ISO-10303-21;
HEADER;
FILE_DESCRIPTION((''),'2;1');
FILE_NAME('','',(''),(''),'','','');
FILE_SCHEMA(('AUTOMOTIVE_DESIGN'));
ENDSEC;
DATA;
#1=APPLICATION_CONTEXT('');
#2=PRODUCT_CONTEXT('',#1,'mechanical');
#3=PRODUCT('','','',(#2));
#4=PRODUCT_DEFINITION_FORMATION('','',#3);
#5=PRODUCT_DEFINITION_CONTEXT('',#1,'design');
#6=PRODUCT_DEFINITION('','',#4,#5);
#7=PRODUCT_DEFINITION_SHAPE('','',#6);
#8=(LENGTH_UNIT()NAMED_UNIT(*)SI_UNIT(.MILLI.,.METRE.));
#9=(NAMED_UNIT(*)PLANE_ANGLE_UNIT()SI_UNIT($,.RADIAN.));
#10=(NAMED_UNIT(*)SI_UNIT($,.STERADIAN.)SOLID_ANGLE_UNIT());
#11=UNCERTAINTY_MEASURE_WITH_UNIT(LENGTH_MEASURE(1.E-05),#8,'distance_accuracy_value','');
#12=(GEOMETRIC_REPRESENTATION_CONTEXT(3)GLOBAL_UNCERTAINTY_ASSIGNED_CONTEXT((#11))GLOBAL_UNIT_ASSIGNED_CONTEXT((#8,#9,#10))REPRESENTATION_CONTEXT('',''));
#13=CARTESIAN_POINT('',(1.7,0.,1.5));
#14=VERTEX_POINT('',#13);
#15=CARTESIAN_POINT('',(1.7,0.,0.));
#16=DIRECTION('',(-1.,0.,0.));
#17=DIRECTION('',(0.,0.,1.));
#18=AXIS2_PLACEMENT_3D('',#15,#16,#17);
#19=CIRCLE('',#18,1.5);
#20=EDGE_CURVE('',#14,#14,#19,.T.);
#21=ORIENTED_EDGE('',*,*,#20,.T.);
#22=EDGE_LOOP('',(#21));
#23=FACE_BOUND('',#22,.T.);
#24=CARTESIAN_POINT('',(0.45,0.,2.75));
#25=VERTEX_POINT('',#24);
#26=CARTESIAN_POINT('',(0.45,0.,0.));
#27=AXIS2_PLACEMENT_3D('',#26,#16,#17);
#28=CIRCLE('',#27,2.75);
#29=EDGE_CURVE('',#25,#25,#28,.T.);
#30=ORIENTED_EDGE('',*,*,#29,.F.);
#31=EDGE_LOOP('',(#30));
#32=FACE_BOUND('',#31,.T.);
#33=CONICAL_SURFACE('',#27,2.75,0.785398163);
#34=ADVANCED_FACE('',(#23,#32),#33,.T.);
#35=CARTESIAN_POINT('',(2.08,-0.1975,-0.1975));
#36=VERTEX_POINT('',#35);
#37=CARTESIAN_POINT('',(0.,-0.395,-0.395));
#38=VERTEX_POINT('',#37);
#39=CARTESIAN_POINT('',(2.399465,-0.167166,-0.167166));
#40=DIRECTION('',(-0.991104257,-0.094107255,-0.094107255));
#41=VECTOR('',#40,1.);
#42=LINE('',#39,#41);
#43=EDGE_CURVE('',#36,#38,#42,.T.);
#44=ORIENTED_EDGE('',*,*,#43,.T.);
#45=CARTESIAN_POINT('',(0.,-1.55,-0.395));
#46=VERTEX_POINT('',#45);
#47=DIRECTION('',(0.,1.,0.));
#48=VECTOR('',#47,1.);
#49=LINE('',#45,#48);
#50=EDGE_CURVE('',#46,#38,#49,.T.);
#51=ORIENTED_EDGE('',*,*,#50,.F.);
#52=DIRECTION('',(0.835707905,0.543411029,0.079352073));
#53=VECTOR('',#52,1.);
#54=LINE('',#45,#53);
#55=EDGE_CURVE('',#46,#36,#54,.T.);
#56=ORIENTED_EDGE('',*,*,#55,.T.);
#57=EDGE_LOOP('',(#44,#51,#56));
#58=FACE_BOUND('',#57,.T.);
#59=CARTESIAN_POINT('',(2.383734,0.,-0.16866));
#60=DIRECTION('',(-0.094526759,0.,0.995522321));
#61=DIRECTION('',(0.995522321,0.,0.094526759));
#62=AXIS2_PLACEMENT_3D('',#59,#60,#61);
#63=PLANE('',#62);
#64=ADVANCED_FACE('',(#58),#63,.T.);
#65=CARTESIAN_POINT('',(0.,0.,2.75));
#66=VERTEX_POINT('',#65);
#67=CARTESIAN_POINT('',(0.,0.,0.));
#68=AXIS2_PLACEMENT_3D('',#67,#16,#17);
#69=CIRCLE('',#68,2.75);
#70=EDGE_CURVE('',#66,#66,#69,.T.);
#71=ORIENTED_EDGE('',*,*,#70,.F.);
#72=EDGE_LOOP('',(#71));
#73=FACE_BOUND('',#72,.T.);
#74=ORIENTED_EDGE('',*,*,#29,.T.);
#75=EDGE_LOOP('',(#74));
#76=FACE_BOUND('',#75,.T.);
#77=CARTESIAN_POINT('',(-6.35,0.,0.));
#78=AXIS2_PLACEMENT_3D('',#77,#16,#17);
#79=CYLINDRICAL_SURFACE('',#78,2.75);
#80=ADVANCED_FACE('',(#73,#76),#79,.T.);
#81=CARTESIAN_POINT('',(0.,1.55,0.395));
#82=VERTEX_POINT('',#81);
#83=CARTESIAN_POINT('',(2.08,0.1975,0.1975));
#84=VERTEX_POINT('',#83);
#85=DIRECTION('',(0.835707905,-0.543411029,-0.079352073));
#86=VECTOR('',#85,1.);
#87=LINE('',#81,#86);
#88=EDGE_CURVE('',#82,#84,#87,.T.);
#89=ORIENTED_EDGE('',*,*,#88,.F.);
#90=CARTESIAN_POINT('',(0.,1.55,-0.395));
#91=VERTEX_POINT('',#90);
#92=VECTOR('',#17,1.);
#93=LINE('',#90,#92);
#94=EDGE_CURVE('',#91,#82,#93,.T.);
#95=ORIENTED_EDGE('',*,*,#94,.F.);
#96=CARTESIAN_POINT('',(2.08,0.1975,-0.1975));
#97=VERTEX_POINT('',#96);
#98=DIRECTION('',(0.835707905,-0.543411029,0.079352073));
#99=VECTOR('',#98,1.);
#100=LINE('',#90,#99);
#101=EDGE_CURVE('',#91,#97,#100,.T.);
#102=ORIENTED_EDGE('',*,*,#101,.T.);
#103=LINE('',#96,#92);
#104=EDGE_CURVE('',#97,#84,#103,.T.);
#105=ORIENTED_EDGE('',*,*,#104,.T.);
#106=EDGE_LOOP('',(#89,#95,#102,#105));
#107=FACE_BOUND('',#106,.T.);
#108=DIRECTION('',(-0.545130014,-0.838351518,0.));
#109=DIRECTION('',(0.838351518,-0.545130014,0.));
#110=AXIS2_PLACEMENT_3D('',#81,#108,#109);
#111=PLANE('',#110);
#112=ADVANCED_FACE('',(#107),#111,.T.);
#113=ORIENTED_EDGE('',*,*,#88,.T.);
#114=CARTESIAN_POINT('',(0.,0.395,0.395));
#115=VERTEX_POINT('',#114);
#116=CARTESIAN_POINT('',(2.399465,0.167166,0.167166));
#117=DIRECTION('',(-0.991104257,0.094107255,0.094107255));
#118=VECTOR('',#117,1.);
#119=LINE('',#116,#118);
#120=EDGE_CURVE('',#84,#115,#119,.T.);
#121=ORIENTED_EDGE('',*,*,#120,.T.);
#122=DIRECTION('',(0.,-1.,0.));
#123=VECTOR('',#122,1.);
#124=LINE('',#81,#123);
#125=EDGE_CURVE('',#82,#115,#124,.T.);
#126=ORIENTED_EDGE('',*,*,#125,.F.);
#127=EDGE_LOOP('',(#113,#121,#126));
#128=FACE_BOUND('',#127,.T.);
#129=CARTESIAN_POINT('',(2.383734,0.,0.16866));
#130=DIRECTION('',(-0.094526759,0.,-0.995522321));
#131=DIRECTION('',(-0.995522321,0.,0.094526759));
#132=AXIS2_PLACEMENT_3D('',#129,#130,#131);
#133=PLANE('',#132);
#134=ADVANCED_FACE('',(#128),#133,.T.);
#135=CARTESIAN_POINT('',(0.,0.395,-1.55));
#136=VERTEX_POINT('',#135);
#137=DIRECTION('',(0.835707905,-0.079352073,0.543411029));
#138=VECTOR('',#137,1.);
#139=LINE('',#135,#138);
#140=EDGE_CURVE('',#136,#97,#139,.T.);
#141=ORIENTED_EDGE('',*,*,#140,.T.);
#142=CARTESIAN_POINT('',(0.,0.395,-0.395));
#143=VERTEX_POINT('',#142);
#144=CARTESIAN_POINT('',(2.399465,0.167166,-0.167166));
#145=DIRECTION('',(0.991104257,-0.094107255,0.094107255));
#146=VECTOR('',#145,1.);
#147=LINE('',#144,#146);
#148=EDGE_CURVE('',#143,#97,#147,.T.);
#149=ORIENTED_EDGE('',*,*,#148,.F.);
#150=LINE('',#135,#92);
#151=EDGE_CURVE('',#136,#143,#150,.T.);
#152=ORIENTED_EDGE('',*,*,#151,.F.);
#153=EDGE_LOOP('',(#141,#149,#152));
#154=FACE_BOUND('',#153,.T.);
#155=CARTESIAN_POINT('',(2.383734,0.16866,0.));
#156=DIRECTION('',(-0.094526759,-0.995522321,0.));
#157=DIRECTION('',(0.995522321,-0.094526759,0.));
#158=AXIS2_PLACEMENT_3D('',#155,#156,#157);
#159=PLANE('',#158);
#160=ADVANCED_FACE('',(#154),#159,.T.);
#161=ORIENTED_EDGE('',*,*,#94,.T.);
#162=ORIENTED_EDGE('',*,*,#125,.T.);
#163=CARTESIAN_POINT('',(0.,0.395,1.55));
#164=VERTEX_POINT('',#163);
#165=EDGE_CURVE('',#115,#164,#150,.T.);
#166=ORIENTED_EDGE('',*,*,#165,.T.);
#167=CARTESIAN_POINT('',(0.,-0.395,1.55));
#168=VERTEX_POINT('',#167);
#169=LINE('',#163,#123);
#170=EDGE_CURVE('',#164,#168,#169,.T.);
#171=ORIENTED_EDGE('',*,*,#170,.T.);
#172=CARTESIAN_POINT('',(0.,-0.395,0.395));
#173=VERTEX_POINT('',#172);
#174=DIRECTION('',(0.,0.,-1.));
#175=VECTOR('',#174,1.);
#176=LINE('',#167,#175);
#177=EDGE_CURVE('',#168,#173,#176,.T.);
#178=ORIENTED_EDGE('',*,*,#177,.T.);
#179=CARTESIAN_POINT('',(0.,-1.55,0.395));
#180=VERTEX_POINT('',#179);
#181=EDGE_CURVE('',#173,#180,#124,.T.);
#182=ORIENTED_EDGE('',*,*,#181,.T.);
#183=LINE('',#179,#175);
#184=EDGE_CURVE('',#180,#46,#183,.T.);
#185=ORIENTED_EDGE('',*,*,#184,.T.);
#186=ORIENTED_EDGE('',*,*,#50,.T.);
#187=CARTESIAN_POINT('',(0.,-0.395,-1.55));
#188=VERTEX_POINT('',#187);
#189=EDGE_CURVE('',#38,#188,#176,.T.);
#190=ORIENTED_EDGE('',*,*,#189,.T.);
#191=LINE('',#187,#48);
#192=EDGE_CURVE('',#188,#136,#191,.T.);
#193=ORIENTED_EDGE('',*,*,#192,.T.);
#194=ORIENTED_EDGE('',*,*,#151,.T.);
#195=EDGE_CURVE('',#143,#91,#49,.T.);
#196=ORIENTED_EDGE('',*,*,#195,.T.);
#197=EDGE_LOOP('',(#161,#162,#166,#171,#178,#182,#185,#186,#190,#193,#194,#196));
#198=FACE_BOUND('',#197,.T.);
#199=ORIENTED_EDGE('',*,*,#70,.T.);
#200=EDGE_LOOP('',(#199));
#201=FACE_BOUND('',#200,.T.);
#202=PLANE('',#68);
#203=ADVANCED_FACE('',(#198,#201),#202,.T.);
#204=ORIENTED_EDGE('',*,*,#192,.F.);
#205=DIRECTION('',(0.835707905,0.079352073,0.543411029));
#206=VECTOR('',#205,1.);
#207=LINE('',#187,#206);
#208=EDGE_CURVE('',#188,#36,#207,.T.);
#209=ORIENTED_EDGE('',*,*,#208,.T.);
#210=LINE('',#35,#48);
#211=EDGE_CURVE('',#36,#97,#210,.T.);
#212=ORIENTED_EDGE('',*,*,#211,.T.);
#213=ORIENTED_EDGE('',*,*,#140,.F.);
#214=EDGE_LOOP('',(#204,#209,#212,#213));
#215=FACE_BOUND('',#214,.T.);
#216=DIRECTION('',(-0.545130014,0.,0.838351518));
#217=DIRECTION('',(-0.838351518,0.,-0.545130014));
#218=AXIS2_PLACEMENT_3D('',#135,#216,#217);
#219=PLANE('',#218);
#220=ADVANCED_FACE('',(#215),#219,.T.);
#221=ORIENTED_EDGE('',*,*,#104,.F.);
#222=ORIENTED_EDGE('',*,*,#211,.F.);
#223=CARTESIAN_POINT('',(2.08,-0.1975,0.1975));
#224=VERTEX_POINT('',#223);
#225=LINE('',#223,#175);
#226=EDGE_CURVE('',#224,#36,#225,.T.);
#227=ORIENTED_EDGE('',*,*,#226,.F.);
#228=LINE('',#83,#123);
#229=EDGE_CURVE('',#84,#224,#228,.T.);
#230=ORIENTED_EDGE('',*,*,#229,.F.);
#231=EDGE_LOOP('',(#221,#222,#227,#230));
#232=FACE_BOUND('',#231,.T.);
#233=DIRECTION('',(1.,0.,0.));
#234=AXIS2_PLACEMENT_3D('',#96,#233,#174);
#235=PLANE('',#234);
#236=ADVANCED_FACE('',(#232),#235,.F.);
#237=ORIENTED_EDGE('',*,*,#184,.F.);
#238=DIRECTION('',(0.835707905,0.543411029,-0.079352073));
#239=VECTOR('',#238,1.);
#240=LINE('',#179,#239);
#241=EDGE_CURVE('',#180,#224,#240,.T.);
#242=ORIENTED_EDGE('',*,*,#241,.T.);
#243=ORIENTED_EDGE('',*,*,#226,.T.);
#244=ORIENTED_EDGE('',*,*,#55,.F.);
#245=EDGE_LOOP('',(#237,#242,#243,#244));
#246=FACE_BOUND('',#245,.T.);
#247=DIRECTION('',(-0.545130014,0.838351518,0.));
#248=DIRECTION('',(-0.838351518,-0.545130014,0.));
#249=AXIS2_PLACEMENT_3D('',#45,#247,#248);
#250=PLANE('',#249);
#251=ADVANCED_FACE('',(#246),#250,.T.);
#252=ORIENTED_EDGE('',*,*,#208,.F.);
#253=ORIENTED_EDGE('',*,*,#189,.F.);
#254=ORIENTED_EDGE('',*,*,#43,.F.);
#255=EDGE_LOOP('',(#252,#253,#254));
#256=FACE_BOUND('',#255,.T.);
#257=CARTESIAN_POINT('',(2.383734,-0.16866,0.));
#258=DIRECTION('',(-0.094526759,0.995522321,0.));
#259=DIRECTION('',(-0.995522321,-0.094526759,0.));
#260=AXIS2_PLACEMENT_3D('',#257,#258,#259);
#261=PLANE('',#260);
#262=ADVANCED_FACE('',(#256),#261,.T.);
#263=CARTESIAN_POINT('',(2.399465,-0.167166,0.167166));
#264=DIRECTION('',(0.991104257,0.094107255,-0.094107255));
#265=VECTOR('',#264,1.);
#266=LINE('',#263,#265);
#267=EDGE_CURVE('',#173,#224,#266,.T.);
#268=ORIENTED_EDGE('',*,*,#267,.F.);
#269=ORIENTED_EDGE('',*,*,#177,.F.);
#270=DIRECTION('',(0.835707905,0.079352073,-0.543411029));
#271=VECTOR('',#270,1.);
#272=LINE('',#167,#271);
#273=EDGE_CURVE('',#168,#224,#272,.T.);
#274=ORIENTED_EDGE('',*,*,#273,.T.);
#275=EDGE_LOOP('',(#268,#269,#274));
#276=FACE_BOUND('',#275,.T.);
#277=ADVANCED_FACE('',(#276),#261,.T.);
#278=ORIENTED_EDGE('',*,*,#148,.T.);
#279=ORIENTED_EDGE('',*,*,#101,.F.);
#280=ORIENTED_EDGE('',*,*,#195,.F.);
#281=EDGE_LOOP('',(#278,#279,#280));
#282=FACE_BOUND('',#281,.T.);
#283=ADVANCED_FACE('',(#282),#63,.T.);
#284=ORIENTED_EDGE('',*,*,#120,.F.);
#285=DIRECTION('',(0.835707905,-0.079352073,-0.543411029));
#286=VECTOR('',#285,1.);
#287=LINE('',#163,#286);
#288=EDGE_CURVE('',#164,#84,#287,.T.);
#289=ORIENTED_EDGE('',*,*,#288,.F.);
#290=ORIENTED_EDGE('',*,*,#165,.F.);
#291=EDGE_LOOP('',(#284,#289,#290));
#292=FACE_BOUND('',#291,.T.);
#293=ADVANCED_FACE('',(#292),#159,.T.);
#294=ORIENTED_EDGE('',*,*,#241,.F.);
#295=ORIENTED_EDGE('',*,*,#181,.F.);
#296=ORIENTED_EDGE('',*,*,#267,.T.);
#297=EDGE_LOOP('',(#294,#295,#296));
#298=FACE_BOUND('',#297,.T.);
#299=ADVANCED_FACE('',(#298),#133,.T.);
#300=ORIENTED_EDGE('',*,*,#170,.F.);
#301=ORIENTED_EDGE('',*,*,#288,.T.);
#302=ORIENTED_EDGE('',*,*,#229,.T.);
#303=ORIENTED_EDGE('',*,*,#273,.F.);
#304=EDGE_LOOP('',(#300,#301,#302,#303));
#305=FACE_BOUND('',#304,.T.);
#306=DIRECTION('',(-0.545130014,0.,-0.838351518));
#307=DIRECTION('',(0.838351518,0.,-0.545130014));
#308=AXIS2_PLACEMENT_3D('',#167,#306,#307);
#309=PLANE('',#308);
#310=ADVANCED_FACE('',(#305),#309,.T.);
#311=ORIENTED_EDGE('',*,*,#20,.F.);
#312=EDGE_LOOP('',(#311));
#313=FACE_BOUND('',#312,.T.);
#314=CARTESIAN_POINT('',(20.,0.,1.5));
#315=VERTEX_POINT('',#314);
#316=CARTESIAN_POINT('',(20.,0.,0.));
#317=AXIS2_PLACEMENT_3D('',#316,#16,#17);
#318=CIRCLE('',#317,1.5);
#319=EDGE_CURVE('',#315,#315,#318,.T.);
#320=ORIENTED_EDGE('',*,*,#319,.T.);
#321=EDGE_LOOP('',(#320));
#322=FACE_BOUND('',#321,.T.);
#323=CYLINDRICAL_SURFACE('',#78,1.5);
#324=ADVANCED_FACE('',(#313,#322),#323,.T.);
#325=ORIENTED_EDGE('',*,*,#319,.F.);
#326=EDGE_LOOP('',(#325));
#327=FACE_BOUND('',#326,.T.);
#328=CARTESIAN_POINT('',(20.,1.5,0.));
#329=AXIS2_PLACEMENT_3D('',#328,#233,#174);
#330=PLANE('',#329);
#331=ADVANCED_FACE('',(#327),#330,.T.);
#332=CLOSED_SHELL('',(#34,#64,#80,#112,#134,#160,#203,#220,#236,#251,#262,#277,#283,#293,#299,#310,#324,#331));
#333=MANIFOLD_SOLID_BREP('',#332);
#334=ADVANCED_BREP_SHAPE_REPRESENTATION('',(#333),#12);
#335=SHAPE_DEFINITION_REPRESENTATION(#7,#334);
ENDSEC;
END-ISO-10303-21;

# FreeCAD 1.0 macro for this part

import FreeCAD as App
import Part
import Sketcher

V = App.Vector
Q = App.Units.Quantity

doc = App.newDocument("Part")
body = doc.addObject("PartDesign::Body", "Body")

sketch1 = body.newObject("Sketcher::SketchObject", "Sketch")
sketch1.AttachmentSupport = (doc.getObject("XY_Plane"), [""])
sketch1.MapMode = "FlatFace"
sketch1.addGeometry(Part.LineSegment(V(0, 2.75, 0), V(0, 0, 0)), False)
sketch1.addGeometry(Part.LineSegment(V(0, 0, 0), V(20, 0, 0)), False)
sketch1.addGeometry(Part.LineSegment(V(20, 0, 0), V(20, 1.5, 0)), False)
sketch1.addGeometry(Part.LineSegment(V(20, 1.5, 0), V(1.7, 1.5, 0)), False)
sketch1.addGeometry(Part.LineSegment(V(1.7, 1.5, 0), V(0.45, 2.75, 0)), False)
sketch1.addGeometry(Part.LineSegment(V(0.45, 2.75, 0), V(0, 2.75, 0)), False)
sketch1.addConstraint(Sketcher.Constraint("Coincident", 0, 2, 1, 1))
sketch1.addConstraint(Sketcher.Constraint("Coincident", 1, 2, 2, 1))
sketch1.addConstraint(Sketcher.Constraint("Coincident", 2, 2, 3, 1))
sketch1.addConstraint(Sketcher.Constraint("Coincident", 3, 2, 4, 1))
sketch1.addConstraint(Sketcher.Constraint("Coincident", 4, 2, 5, 1))
sketch1.addConstraint(Sketcher.Constraint("Coincident", 5, 2, 0, 1))
sketch1.addConstraint(Sketcher.Constraint("Vertical", 0))
sketch1.addConstraint(Sketcher.Constraint("Horizontal", 1))
sketch1.addConstraint(Sketcher.Constraint("Vertical", 2))
sketch1.addConstraint(Sketcher.Constraint("Horizontal", 3))
sketch1.addConstraint(Sketcher.Constraint("Horizontal", 5))
sketch1.addConstraint(Sketcher.Constraint("Coincident", 0, 2, -1, 1))
sketch1.addConstraint(Sketcher.Constraint("DistanceX", 1, 1, 1, 2, 20.0))
sketch1.addConstraint(Sketcher.Constraint("Angle", 4, Q("135 deg")))
sketch1.addConstraint(Sketcher.Constraint("DistanceX", 3, 2, 3, 1, 18.3))
sketch1.addConstraint(Sketcher.Constraint("DistanceY", 2, 1, 2, 2, 1.5))
sketch1.addConstraint(Sketcher.Constraint("DistanceX", 5, 2, 5, 1, 0.45))
revolution = body.newObject("PartDesign::Revolution", "Revolution")
revolution.Profile = sketch1
revolution.ReferenceAxis = (sketch1, ["H_Axis"])
revolution.Angle = 360

sketch2 = body.newObject("Sketcher::SketchObject", "Sketch001")
sketch2.AttachmentSupport = (doc.getObject("YZ_Plane"), [""])
sketch2.MapMode = "FlatFace"
sketch2.addGeometry(Part.LineSegment(V(1.55, -0.395, 0), V(-1.55, -0.395, 0)), False)
sketch2.addGeometry(Part.LineSegment(V(-1.55, -0.395, 0), V(-1.55, 0.395, 0)), False)
sketch2.addGeometry(Part.LineSegment(V(-1.55, 0.395, 0), V(1.55, 0.395, 0)), False)
sketch2.addGeometry(Part.LineSegment(V(1.55, 0.395, 0), V(1.55, -0.395, 0)), False)
sketch2.addConstraint(Sketcher.Constraint("Coincident", 0, 2, 1, 1))
sketch2.addConstraint(Sketcher.Constraint("Coincident", 1, 2, 2, 1))
sketch2.addConstraint(Sketcher.Constraint("Coincident", 2, 2, 3, 1))
sketch2.addConstraint(Sketcher.Constraint("Coincident", 3, 2, 0, 1))
sketch2.addConstraint(Sketcher.Constraint("Horizontal", 0))
sketch2.addConstraint(Sketcher.Constraint("Vertical", 1))
sketch2.addConstraint(Sketcher.Constraint("Horizontal", 2))
sketch2.addConstraint(Sketcher.Constraint("Vertical", 3))
sketch2.addConstraint(Sketcher.Constraint("Symmetric", 0, 2, 2, 2, -1, 1))
sketch2.addConstraint(Sketcher.Constraint("DistanceX", 0, 2, 0, 1, 3.1))
sketch2.addConstraint(Sketcher.Constraint("DistanceY", 1, 1, 1, 2, 0.79))

sketch3 = body.newObject("Sketcher::SketchObject", "Sketch002")
sketch3.AttachmentSupport = (doc.getObject("YZ_Plane"), [""])
sketch3.MapMode = "FlatFace"
sketch3.AttachmentOffset = App.Placement(V(0, 0, 2.08), App.Rotation())
sketch3.addGeometry(Part.LineSegment(V(0.1975, -0.1975, 0), V(-0.1975, -0.1975, 0)), False)
sketch3.addGeometry(Part.LineSegment(V(-0.1975, -0.1975, 0), V(-0.1975, 0.1975, 0)), False)
sketch3.addGeometry(Part.LineSegment(V(-0.1975, 0.1975, 0), V(0.1975, 0.1975, 0)), False)
sketch3.addGeometry(Part.LineSegment(V(0.1975, 0.1975, 0), V(0.1975, -0.1975, 0)), False)
sketch3.addConstraint(Sketcher.Constraint("Coincident", 0, 2, 1, 1))
sketch3.addConstraint(Sketcher.Constraint("Coincident", 1, 2, 2, 1))
sketch3.addConstraint(Sketcher.Constraint("Coincident", 2, 2, 3, 1))
sketch3.addConstraint(Sketcher.Constraint("Coincident", 3, 2, 0, 1))
sketch3.addConstraint(Sketcher.Constraint("Horizontal", 0))
sketch3.addConstraint(Sketcher.Constraint("Vertical", 1))
sketch3.addConstraint(Sketcher.Constraint("Horizontal", 2))
sketch3.addConstraint(Sketcher.Constraint("Vertical", 3))
sketch3.addConstraint(Sketcher.Constraint("Symmetric", 0, 2, 2, 2, -1, 1))
sketch3.addConstraint(Sketcher.Constraint("Equal", 2, 1))
sketch3.addConstraint(Sketcher.Constraint("DistanceX", 0, 2, 0, 1, 0.395))

subtractiveloft = body.newObject("PartDesign::SubtractiveLoft", "SubtractiveLoft")
subtractiveloft.Profile = sketch2
subtractiveloft.Sections = [sketch3]
doc.recompute()

polarpattern = body.newObject("PartDesign::PolarPattern", "PolarPattern")
polarpattern.Originals = [subtractiveloft]
polarpattern.Axis = (doc.getObject("X_Axis"), [""])
polarpattern.Angle = 90
polarpattern.Occurrences = 2
body.Tip = polarpattern

doc.recompute()
